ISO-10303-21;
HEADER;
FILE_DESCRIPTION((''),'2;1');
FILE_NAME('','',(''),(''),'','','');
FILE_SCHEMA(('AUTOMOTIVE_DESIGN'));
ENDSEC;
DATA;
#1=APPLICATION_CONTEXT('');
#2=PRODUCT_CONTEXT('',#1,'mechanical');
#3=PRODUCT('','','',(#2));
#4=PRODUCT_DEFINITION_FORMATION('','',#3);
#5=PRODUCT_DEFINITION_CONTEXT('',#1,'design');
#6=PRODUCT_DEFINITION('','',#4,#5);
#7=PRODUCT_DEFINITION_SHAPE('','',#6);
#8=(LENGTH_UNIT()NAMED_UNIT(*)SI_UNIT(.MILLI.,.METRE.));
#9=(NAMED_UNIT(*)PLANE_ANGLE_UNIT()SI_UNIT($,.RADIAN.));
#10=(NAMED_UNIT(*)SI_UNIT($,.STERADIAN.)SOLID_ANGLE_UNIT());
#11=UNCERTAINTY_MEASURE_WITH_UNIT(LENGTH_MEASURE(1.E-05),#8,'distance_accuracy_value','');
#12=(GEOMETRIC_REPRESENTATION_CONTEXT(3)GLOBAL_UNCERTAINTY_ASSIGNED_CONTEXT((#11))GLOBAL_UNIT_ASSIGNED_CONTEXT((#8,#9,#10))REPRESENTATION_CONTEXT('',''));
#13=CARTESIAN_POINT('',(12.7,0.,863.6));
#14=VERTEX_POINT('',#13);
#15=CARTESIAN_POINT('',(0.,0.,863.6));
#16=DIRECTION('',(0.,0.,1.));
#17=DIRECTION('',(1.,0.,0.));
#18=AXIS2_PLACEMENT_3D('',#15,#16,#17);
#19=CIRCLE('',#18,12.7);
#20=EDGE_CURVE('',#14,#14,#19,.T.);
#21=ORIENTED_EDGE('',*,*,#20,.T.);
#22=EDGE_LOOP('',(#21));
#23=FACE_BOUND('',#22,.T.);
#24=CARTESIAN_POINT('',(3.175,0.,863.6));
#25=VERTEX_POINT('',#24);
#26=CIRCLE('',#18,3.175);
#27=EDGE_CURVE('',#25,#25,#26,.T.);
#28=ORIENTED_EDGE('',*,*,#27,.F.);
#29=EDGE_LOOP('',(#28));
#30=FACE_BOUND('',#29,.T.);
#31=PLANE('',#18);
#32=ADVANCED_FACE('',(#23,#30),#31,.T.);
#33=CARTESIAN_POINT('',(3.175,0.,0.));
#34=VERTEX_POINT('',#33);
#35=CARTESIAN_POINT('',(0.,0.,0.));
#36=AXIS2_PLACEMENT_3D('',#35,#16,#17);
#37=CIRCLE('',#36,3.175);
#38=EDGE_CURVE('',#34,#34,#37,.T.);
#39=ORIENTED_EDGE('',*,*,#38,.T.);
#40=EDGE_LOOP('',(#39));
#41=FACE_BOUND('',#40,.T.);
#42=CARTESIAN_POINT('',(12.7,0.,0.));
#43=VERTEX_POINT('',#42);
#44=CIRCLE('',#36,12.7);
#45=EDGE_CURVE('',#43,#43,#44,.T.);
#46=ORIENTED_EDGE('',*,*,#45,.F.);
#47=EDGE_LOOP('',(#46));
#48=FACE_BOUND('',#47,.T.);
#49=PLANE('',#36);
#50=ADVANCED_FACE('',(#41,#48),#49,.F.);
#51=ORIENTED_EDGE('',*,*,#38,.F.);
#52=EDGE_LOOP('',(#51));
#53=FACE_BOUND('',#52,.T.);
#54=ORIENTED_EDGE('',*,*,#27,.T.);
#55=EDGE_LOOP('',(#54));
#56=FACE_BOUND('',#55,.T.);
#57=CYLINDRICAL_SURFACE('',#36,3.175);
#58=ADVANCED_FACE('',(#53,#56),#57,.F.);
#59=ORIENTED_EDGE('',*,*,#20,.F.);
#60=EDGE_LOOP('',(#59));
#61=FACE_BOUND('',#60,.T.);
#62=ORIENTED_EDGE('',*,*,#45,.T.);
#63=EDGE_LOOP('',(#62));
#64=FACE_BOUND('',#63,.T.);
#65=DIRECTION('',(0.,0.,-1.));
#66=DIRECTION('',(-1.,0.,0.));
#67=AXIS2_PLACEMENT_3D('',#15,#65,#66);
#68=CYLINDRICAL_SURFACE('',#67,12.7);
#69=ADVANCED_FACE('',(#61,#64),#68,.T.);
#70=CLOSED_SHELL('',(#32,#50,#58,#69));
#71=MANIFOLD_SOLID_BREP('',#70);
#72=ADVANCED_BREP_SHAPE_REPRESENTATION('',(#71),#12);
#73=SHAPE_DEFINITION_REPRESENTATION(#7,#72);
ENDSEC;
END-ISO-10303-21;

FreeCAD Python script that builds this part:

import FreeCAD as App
import Part
import Sketcher
Q = App.Units.Quantity

doc = App.newDocument("Part")
body = doc.addObject("PartDesign::Body", "Body")

sketch1 = body.newObject("Sketcher::SketchObject", "Sketch")
sketch1.AttachmentSupport = (doc.getObject("XY_Plane"), [""])
sketch1.MapMode = "FlatFace"
sketch1.addGeometry(Part.Circle(App.Vector(0, 0, 0), App.Vector(0, 0, 1), 12.7), False)
sketch1.addConstraint([
    Sketcher.Constraint("Coincident", 0, 3, -1, 1),
    Sketcher.Constraint("Diameter", 0, Q("1 in")),
])
pad1 = body.newObject("PartDesign::Pad", "Pad")
pad1.Profile = sketch1
pad1.Length = Q("34 in")

sketch2 = body.newObject("Sketcher::SketchObject", "Sketch001")
sketch2.AttachmentSupport = (doc.getObject("XY_Plane"), [""])
sketch2.MapMode = "FlatFace"
sketch2.AttachmentOffset = App.Placement(App.Vector(0, 0, 34 * 25.4), App.Rotation())
sketch2.addGeometry(Part.Circle(App.Vector(0, 0, 0), App.Vector(0, 0, 1), 3.175), False)
sketch2.addConstraint([
    Sketcher.Constraint("Coincident", 0, 3, -1, 1),
    Sketcher.Constraint("Diameter", 0, Q("0.25 in")),
])
pocket1 = body.newObject("PartDesign::Pocket", "Pocket")
pocket1.Profile = sketch2
pocket1.Length = Q("34 in")

doc.recompute()
